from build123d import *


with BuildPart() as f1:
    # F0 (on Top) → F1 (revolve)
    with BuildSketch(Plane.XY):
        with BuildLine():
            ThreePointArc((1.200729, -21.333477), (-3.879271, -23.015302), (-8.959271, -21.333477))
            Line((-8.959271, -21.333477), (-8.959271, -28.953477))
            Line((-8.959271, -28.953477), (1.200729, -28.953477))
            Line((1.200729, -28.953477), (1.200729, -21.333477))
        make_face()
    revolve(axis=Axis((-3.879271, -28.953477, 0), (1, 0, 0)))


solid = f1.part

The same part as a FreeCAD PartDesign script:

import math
import FreeCAD as App
import Part
import Sketcher

V = App.Vector
Q = App.Units.Quantity

doc = App.newDocument("Part")
body = doc.addObject("PartDesign::Body", "Body")

# Sketch on XY plane
sketch1 = body.newObject("Sketcher::SketchObject", "Sketch")
sketch1.AttachmentSupport = (doc.getObject("XY_Plane"), [""])
sketch1.MapMode = "FlatFace"
sketch1.addGeometry([
    Part.ArcOfCircle(Part.Circle(V(-4, -15, 0), V(0, 0, 1), 9), math.radians(-127), math.radians(-53)),
    Part.LineSegment(V(-9, -21, 0), V(-9, -29, 0)),
    Part.LineSegment(V(-9, -29, 0), V(1, -29, 0)),
    Part.LineSegment(V(1, -29, 0), V(1, -21, 0)),
], False)
sketch1.addGeometry(Part.LineSegment(V(-9, -29, 0), V(1, -29, 0)), True)  # axis
sketch1.addConstraint([
    Sketcher.Constraint("Coincident", 0, 1, 1, 1),
    Sketcher.Constraint("Coincident", 1, 2, 2, 1),
    Sketcher.Constraint("Coincident", 2, 2, 3, 1),
    Sketcher.Constraint("Coincident", 3, 2, 0, 2),
    Sketcher.Constraint("Vertical", 1),
    Sketcher.Constraint("Horizontal", 2),
    Sketcher.Constraint("Vertical", 3),
    Sketcher.Constraint("Horizontal", 4),
    Sketcher.Constraint("Coincident", 4, 1, 1, 2),
    Sketcher.Constraint("Horizontal", 0, 1, 3, 2),
    Sketcher.Constraint("Vertical", 3, 2, 4, 2),
    Sketcher.Constraint("DistanceX", 2, 1, 2, 2, Q("0.4 in")),
    Sketcher.Constraint("DistanceY", 1, 2, 1, 1, Q("0.3 in")),
    Sketcher.Constraint("Radius", 0, 8.513054),
    Sketcher.Constraint("DistanceX", 0, 3, -1, 1, 3.879271),
    Sketcher.Constraint("DistanceY", 0, 3, -1, 1, 14.502248),
])
revolution = body.newObject("PartDesign::Revolution", "Revolution")
revolution.Profile = sketch1
revolution.ReferenceAxis = (sketch1, ["Axis0"])
revolution.Angle = 360

doc.recompute()
